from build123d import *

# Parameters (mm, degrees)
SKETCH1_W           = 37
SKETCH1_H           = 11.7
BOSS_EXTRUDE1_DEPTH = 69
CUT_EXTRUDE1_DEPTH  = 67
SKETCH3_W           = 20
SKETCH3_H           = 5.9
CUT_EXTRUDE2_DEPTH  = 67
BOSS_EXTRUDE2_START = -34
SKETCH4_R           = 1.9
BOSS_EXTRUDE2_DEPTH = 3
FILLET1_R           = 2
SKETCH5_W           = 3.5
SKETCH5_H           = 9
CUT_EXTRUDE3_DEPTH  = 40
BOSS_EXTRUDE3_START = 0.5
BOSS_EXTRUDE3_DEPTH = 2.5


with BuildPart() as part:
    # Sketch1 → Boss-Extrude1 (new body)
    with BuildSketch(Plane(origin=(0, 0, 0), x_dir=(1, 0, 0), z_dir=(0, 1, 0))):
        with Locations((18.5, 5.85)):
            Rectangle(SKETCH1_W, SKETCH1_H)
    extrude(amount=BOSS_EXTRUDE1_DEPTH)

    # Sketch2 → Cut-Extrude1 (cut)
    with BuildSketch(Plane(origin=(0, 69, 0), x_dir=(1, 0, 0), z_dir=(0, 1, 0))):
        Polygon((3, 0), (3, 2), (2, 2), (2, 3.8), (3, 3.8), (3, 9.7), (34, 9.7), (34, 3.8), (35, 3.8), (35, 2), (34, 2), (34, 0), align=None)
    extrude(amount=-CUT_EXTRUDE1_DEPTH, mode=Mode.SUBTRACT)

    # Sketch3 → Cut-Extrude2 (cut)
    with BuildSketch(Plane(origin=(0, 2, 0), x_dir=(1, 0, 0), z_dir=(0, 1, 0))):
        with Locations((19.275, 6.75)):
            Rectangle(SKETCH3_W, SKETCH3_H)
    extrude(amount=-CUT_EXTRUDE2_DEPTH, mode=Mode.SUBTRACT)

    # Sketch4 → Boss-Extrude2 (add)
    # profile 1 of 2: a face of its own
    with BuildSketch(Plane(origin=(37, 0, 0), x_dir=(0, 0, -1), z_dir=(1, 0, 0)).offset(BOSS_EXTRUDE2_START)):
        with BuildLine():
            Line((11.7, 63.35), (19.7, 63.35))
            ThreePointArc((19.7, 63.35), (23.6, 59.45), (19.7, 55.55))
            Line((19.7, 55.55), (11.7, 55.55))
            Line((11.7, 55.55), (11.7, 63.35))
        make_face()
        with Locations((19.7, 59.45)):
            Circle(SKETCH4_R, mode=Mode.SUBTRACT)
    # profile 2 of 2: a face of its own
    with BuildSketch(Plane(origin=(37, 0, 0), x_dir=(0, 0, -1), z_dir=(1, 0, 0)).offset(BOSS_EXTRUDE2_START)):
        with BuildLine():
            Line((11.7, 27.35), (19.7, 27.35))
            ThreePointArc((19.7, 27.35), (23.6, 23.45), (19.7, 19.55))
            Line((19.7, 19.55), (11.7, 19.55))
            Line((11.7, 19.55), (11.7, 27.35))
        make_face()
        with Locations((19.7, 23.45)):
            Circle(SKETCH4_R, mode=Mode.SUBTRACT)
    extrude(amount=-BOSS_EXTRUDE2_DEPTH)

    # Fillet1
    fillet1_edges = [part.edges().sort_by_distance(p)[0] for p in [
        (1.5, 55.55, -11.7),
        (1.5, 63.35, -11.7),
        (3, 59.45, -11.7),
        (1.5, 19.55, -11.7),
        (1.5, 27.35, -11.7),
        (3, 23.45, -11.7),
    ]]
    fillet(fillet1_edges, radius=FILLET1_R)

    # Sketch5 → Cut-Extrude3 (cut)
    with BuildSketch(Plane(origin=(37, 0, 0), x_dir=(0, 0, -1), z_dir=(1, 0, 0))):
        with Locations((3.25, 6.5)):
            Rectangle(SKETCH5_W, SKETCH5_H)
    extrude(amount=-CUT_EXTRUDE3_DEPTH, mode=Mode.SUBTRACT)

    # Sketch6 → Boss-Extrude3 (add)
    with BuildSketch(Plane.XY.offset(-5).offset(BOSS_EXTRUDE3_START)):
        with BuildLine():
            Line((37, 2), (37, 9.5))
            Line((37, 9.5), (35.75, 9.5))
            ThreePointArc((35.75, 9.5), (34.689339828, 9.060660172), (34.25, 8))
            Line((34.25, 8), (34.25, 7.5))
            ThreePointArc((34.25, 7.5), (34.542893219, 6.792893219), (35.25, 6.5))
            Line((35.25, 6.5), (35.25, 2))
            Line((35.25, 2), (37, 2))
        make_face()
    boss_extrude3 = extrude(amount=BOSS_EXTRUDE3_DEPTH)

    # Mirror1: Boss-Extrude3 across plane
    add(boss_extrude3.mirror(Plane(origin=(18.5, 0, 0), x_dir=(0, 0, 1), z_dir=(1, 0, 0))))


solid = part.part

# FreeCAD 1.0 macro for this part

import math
import FreeCAD as App
import Part
import Sketcher
from FreeCAD import Vector


def edges_at(feature, points):
    """Names of the edges that pass closest to the given points."""
    edges = feature.Shape.Edges
    near = lambda p: min(range(len(edges)), key=lambda i: edges[i].distToShape(Part.Vertex(*p))[0])
    return sorted({f"Edge{near(p) + 1}" for p in points})


def add_polygon(sketch, points):
    """Adds a closed chain of lines whose ends are joined by coincident constraints."""
    first, n = sketch.GeometryCount, len(points)
    for a, b in zip(points, points[1:] + points[:1]):
        sketch.addGeometry(Part.LineSegment(App.Vector(*a, 0), App.Vector(*b, 0)), False)
    for i in range(n):
        sketch.addConstraint(Sketcher.Constraint("Coincident", first + i, 2, first + (i + 1) % n, 1))

doc = App.newDocument("Part")
body = doc.addObject("PartDesign::Body", "Body")

# Sketch on XZ plane
sketch1 = body.newObject("Sketcher::SketchObject", "Sketch")
sketch1.AttachmentSupport = (doc.getObject("XZ_Plane"), [""])
sketch1.MapMode = "FlatFace"
add_polygon(sketch1, [(0, -11.7), (0, 0), (37, 0), (37, -11.7)])  # lines 0-3
sketch1.addConstraint(Sketcher.Constraint("Vertical", 0))
sketch1.addConstraint(Sketcher.Constraint("Horizontal", 1))
sketch1.addConstraint(Sketcher.Constraint("Vertical", 2))
sketch1.addConstraint(Sketcher.Constraint("Horizontal", 3))
sketch1.addConstraint(Sketcher.Constraint("Coincident", 0, 2, -1, 1))
sketch1.addConstraint(Sketcher.Constraint("DistanceX", 1, 1, 1, 2, 37.0))
sketch1.addConstraint(Sketcher.Constraint("DistanceY", 0, 1, 0, 2, 11.7))
pad1 = body.newObject("PartDesign::Pad", "Pad")
pad1.Profile = sketch1
pad1.Length = 69
pad1.Reversed = True

# Sketch on XZ plane
sketch2 = body.newObject("Sketcher::SketchObject", "Sketch001")
sketch2.AttachmentSupport = (doc.getObject("XZ_Plane"), [""])
sketch2.MapMode = "FlatFace"
sketch2.AttachmentOffset = App.Placement(Vector(0, 0, -69), App.Rotation())
add_polygon(sketch2, [(3, -2), (3, 0), (34, 0), (34, -2), (35, -2), (35, -3.8), (34, -3.8), (34, -9.7), (3, -9.7), (3, -3.8), (2, -3.8), (2, -2)])  # lines 0-11
sketch2.addConstraint(Sketcher.Constraint("Vertical", 0))
sketch2.addConstraint(Sketcher.Constraint("Horizontal", 1))
sketch2.addConstraint(Sketcher.Constraint("Vertical", 2))
sketch2.addConstraint(Sketcher.Constraint("Horizontal", 3))
sketch2.addConstraint(Sketcher.Constraint("Vertical", 4))
sketch2.addConstraint(Sketcher.Constraint("Horizontal", 5))
sketch2.addConstraint(Sketcher.Constraint("Vertical", 6))
sketch2.addConstraint(Sketcher.Constraint("Horizontal", 7))
sketch2.addConstraint(Sketcher.Constraint("Vertical", 8))
sketch2.addConstraint(Sketcher.Constraint("Horizontal", 9))
sketch2.addConstraint(Sketcher.Constraint("Vertical", 10))
sketch2.addConstraint(Sketcher.Constraint("Horizontal", 11))
sketch2.addConstraint(Sketcher.Constraint("PointOnObject", 0, 2, -1))
sketch2.addConstraint(Sketcher.Constraint("Horizontal", 5, 2, 8, 2))
sketch2.addConstraint(Sketcher.Constraint("Horizontal", 3, 2, 10, 2))
sketch2.addConstraint(Sketcher.Constraint("Vertical", 2, 2, 5, 2))
sketch2.addConstraint(Sketcher.Constraint("Vertical", 0, 2, 7, 2))
sketch2.addConstraint(Sketcher.Constraint("Equal", 5, 9))
sketch2.addConstraint(Sketcher.Constraint("DistanceX", 1, 1, 1, 2, 31.0))
sketch2.addConstraint(Sketcher.Constraint("DistanceX", 3, 1, 3, 2, 1.0))
sketch2.addConstraint(Sketcher.Constraint("DistanceY", 0, 1, 0, 2, 2.0))
sketch2.addConstraint(Sketcher.Constraint("DistanceY", 4, 2, 4, 1, 1.8))
sketch2.addConstraint(Sketcher.Constraint("DistanceY", 6, 2, 6, 1, 5.9))
sketch2.addConstraint(Sketcher.Constraint("DistanceX", -1, 1, 0, 2, 3.0))
pocket1 = body.newObject("PartDesign::Pocket", "Pocket")
pocket1.Profile = sketch2
pocket1.Length = 67
pocket1.Reversed = True

# Sketch on XZ plane
sketch3 = body.newObject("Sketcher::SketchObject", "Sketch002")
sketch3.AttachmentSupport = (doc.getObject("XZ_Plane"), [""])
sketch3.MapMode = "FlatFace"
sketch3.AttachmentOffset = App.Placement(Vector(0, 0, -2), App.Rotation())
add_polygon(sketch3, [(9.275, -9.7), (9.275, -3.8), (29.275, -3.8), (29.275, -9.7)])  # lines 0-3
sketch3.addConstraint(Sketcher.Constraint("Vertical", 0))
sketch3.addConstraint(Sketcher.Constraint("Horizontal", 1))
sketch3.addConstraint(Sketcher.Constraint("Vertical", 2))
sketch3.addConstraint(Sketcher.Constraint("Horizontal", 3))
sketch3.addConstraint(Sketcher.Constraint("DistanceX", 1, 1, 1, 2, 20.0))
sketch3.addConstraint(Sketcher.Constraint("DistanceY", 0, 1, 0, 2, 5.9))
sketch3.addConstraint(Sketcher.Constraint("DistanceY", 0, 2, -1, 1, 3.8))
sketch3.addConstraint(Sketcher.Constraint("DistanceX", -1, 1, 0, 2, 9.275))
pocket2 = body.newObject("PartDesign::Pocket", "Pocket001")
pocket2.Profile = sketch3
pocket2.Length = 67
pocket2.Reversed = True

# Sketch on YZ plane
sketch4 = body.newObject("Sketcher::SketchObject", "Sketch003")
sketch4.AttachmentSupport = (doc.getObject("YZ_Plane"), [""])
sketch4.MapMode = "FlatFace"
sketch4.AttachmentOffset = App.Placement(Vector(0, 0, 3), App.Rotation())
sketch4.addGeometry(Part.LineSegment(Vector(63.35, -19.7, 0), Vector(63.35, -11.7, 0)), False)
sketch4.addGeometry(Part.LineSegment(Vector(63.35, -11.7, 0), Vector(55.55, -11.7, 0)), False)
sketch4.addGeometry(Part.LineSegment(Vector(55.55, -11.7, 0), Vector(55.55, -19.7, 0)), False)
sketch4.addGeometry(Part.ArcOfCircle(Part.Circle(Vector(59.45, -19.7, 0), Vector(0, 0, 1), 3.9), math.radians(180), math.radians(360)), False)
sketch4.addGeometry(Part.Circle(Vector(59.45, -19.7, 0), Vector(0, 0, 1), 1.9), False)
sketch4.addGeometry(Part.LineSegment(Vector(27.35, -19.7, 0), Vector(27.35, -11.7, 0)), False)
sketch4.addGeometry(Part.LineSegment(Vector(27.35, -11.7, 0), Vector(19.55, -11.7, 0)), False)
sketch4.addGeometry(Part.LineSegment(Vector(19.55, -11.7, 0), Vector(19.55, -19.7, 0)), False)
sketch4.addGeometry(Part.ArcOfCircle(Part.Circle(Vector(23.45, -19.7, 0), Vector(0, 0, 1), 3.9), math.radians(180), math.radians(360)), False)
sketch4.addGeometry(Part.Circle(Vector(23.45, -19.7, 0), Vector(0, 0, 1), 1.9), False)
sketch4.addConstraint(Sketcher.Constraint("Coincident", 0, 2, 1, 1))
sketch4.addConstraint(Sketcher.Constraint("Coincident", 1, 2, 2, 1))
sketch4.addConstraint(Sketcher.Constraint("Tangent", 2, 2, 3, 1))
sketch4.addConstraint(Sketcher.Constraint("Tangent", 3, 2, 0, 1))
sketch4.addConstraint(Sketcher.Constraint("Coincident", 5, 2, 6, 1))
sketch4.addConstraint(Sketcher.Constraint("Coincident", 6, 2, 7, 1))
sketch4.addConstraint(Sketcher.Constraint("Tangent", 7, 2, 8, 1))
sketch4.addConstraint(Sketcher.Constraint("Tangent", 8, 2, 5, 1))
sketch4.addConstraint(Sketcher.Constraint("Vertical", 0))
sketch4.addConstraint(Sketcher.Constraint("Horizontal", 1))
sketch4.addConstraint(Sketcher.Constraint("Vertical", 2))
sketch4.addConstraint(Sketcher.Constraint("Vertical", 5))
sketch4.addConstraint(Sketcher.Constraint("Horizontal", 6))
sketch4.addConstraint(Sketcher.Constraint("Vertical", 7))
sketch4.addConstraint(Sketcher.Constraint("Coincident", 4, 3, 3, 3))
sketch4.addConstraint(Sketcher.Constraint("Coincident", 9, 3, 8, 3))
sketch4.addConstraint(Sketcher.Constraint("Equal", 3, 8))
sketch4.addConstraint(Sketcher.Constraint("Equal", 4, 9))
sketch4.addConstraint(Sketcher.Constraint("Horizontal", 4, 3, 8, 3))
sketch4.addConstraint(Sketcher.Constraint("Horizontal", 1, 2, 5, 2))
sketch4.addConstraint(Sketcher.Constraint("Diameter", 4, 3.8))
sketch4.addConstraint(Sketcher.Constraint("Radius", 3, 3.9))
sketch4.addConstraint(Sketcher.Constraint("DistanceY", 0, 1, 0, 2, 8.0))
sketch4.addConstraint(Sketcher.Constraint("DistanceX", 8, 3, 3, 3, 36.0))
sketch4.addConstraint(Sketcher.Constraint("DistanceY", 3, 3, -1, 1, 19.7))
sketch4.addConstraint(Sketcher.Constraint("DistanceX", -1, 1, 3, 3, 59.45))
pad2 = body.newObject("PartDesign::Pad", "Pad001")
pad2.Profile = sketch4
pad2.Length = 3
pad2.Reversed = True
doc.recompute()

fillet = body.newObject("PartDesign::Fillet", "Fillet")
fillet.Base = (pad2, edges_at(pad2, [
    (1.5, 55.55, -11.7),
    (1.5, 63.35, -11.7),
    (3, 59.45, -11.7),
    (1.5, 19.55, -11.7),
    (1.5, 27.35, -11.7),
    (3, 23.45, -11.7),
]))
fillet.Radius = 2

# Sketch on YZ plane
sketch5 = body.newObject("Sketcher::SketchObject", "Sketch004")
sketch5.AttachmentSupport = (doc.getObject("YZ_Plane"), [""])
sketch5.MapMode = "FlatFace"
sketch5.AttachmentOffset = App.Placement(Vector(0, 0, 37), App.Rotation())
add_polygon(sketch5, [(11, -1.5), (2, -1.5), (2, -5), (11, -5)])  # lines 0-3
sketch5.addConstraint(Sketcher.Constraint("Horizontal", 0))
sketch5.addConstraint(Sketcher.Constraint("Vertical", 1))
sketch5.addConstraint(Sketcher.Constraint("Horizontal", 2))
sketch5.addConstraint(Sketcher.Constraint("Vertical", 3))
sketch5.addConstraint(Sketcher.Constraint("DistanceX", 0, 2, 0, 1, 9.0))
sketch5.addConstraint(Sketcher.Constraint("DistanceY", 1, 2, 1, 1, 3.5))
sketch5.addConstraint(Sketcher.Constraint("DistanceX", -1, 1, 0, 2, 2.0))
sketch5.addConstraint(Sketcher.Constraint("DistanceY", 1, 2, -1, 1, 5.0))
pocket3 = body.newObject("PartDesign::Pocket", "Pocket002")
pocket3.Profile = sketch5
pocket3.Length = 40

# Sketch on XY plane
sketch6 = body.newObject("Sketcher::SketchObject", "Sketch005")
sketch6.AttachmentSupport = (doc.getObject("XY_Plane"), [""])
sketch6.MapMode = "FlatFace"
sketch6.AttachmentOffset = App.Placement(Vector(0, 0, -4.5), App.Rotation())
sketch6.addGeometry(Part.LineSegment(Vector(37, 2, 0), Vector(37, 9.5, 0)), False)
sketch6.addGeometry(Part.LineSegment(Vector(37, 9.5, 0), Vector(35.75, 9.5, 0)), False)
sketch6.addGeometry(Part.ArcOfCircle(Part.Circle(Vector(35.75, 8, 0), Vector(0, 0, 1), 1.5), math.radians(90), math.radians(180)), False)
sketch6.addGeometry(Part.LineSegment(Vector(34.25, 8, 0), Vector(34.25, 7.5, 0)), False)
sketch6.addGeometry(Part.ArcOfCircle(Part.Circle(Vector(35.25, 7.5, 0), Vector(0, 0, 1), 1), math.radians(-180), math.radians(-90)), False)
sketch6.addGeometry(Part.LineSegment(Vector(35.25, 6.5, 0), Vector(35.25, 2, 0)), False)
sketch6.addGeometry(Part.LineSegment(Vector(35.25, 2, 0), Vector(37, 2, 0)), False)
sketch6.addConstraint(Sketcher.Constraint("Coincident", 0, 2, 1, 1))
sketch6.addConstraint(Sketcher.Constraint("Tangent", 1, 2, 2, 1))
sketch6.addConstraint(Sketcher.Constraint("Tangent", 2, 2, 3, 1))
sketch6.addConstraint(Sketcher.Constraint("Tangent", 3, 2, 4, 1))
sketch6.addConstraint(Sketcher.Constraint("Coincident", 4, 2, 5, 1))
sketch6.addConstraint(Sketcher.Constraint("Coincident", 5, 2, 6, 1))
sketch6.addConstraint(Sketcher.Constraint("Coincident", 6, 2, 0, 1))
sketch6.addConstraint(Sketcher.Constraint("Vertical", 0))
sketch6.addConstraint(Sketcher.Constraint("Horizontal", 1))
sketch6.addConstraint(Sketcher.Constraint("Vertical", 3))
sketch6.addConstraint(Sketcher.Constraint("Vertical", 5))
sketch6.addConstraint(Sketcher.Constraint("Horizontal", 6))
sketch6.addConstraint(Sketcher.Constraint("Radius", 4, 1.0))
sketch6.addConstraint(Sketcher.Constraint("Radius", 2, 1.5))
sketch6.addConstraint(Sketcher.Constraint("DistanceY", 0, 1, 0, 2, 7.5))
sketch6.addConstraint(Sketcher.Constraint("DistanceY", 3, 2, 3, 1, 0.5))
sketch6.addConstraint(Sketcher.Constraint("DistanceY", -1, 1, 2, 3, 8.0))
sketch6.addConstraint(Sketcher.Constraint("DistanceX", -1, 1, 0, 2, 37.0))
sketch6.addConstraint(Sketcher.Constraint("DistanceX", 3, 2, 4, 2, 1.0))
sketch6.addConstraint(Sketcher.Constraint("DistanceX", 1, 2, 1, 1, 1.25))
pad3 = body.newObject("PartDesign::Pad", "Pad002")
pad3.Profile = sketch6
pad3.Length = 2.5
doc.recompute()

datumplane = body.newObject("PartDesign::Plane", "DatumPlane")
datumplane.AttachmentSupport = (doc.getObject("YZ_Plane"), [""])
datumplane.MapMode = "FlatFace"
datumplane.AttachmentOffset = App.Placement(Vector(0, 0, 18.5), App.Rotation())
mirrored = body.newObject("PartDesign::Mirrored", "Mirrored")
mirrored.Originals = [pad3]
mirrored.MirrorPlane = (datumplane, [""])
body.Tip = mirrored

doc.recompute()
